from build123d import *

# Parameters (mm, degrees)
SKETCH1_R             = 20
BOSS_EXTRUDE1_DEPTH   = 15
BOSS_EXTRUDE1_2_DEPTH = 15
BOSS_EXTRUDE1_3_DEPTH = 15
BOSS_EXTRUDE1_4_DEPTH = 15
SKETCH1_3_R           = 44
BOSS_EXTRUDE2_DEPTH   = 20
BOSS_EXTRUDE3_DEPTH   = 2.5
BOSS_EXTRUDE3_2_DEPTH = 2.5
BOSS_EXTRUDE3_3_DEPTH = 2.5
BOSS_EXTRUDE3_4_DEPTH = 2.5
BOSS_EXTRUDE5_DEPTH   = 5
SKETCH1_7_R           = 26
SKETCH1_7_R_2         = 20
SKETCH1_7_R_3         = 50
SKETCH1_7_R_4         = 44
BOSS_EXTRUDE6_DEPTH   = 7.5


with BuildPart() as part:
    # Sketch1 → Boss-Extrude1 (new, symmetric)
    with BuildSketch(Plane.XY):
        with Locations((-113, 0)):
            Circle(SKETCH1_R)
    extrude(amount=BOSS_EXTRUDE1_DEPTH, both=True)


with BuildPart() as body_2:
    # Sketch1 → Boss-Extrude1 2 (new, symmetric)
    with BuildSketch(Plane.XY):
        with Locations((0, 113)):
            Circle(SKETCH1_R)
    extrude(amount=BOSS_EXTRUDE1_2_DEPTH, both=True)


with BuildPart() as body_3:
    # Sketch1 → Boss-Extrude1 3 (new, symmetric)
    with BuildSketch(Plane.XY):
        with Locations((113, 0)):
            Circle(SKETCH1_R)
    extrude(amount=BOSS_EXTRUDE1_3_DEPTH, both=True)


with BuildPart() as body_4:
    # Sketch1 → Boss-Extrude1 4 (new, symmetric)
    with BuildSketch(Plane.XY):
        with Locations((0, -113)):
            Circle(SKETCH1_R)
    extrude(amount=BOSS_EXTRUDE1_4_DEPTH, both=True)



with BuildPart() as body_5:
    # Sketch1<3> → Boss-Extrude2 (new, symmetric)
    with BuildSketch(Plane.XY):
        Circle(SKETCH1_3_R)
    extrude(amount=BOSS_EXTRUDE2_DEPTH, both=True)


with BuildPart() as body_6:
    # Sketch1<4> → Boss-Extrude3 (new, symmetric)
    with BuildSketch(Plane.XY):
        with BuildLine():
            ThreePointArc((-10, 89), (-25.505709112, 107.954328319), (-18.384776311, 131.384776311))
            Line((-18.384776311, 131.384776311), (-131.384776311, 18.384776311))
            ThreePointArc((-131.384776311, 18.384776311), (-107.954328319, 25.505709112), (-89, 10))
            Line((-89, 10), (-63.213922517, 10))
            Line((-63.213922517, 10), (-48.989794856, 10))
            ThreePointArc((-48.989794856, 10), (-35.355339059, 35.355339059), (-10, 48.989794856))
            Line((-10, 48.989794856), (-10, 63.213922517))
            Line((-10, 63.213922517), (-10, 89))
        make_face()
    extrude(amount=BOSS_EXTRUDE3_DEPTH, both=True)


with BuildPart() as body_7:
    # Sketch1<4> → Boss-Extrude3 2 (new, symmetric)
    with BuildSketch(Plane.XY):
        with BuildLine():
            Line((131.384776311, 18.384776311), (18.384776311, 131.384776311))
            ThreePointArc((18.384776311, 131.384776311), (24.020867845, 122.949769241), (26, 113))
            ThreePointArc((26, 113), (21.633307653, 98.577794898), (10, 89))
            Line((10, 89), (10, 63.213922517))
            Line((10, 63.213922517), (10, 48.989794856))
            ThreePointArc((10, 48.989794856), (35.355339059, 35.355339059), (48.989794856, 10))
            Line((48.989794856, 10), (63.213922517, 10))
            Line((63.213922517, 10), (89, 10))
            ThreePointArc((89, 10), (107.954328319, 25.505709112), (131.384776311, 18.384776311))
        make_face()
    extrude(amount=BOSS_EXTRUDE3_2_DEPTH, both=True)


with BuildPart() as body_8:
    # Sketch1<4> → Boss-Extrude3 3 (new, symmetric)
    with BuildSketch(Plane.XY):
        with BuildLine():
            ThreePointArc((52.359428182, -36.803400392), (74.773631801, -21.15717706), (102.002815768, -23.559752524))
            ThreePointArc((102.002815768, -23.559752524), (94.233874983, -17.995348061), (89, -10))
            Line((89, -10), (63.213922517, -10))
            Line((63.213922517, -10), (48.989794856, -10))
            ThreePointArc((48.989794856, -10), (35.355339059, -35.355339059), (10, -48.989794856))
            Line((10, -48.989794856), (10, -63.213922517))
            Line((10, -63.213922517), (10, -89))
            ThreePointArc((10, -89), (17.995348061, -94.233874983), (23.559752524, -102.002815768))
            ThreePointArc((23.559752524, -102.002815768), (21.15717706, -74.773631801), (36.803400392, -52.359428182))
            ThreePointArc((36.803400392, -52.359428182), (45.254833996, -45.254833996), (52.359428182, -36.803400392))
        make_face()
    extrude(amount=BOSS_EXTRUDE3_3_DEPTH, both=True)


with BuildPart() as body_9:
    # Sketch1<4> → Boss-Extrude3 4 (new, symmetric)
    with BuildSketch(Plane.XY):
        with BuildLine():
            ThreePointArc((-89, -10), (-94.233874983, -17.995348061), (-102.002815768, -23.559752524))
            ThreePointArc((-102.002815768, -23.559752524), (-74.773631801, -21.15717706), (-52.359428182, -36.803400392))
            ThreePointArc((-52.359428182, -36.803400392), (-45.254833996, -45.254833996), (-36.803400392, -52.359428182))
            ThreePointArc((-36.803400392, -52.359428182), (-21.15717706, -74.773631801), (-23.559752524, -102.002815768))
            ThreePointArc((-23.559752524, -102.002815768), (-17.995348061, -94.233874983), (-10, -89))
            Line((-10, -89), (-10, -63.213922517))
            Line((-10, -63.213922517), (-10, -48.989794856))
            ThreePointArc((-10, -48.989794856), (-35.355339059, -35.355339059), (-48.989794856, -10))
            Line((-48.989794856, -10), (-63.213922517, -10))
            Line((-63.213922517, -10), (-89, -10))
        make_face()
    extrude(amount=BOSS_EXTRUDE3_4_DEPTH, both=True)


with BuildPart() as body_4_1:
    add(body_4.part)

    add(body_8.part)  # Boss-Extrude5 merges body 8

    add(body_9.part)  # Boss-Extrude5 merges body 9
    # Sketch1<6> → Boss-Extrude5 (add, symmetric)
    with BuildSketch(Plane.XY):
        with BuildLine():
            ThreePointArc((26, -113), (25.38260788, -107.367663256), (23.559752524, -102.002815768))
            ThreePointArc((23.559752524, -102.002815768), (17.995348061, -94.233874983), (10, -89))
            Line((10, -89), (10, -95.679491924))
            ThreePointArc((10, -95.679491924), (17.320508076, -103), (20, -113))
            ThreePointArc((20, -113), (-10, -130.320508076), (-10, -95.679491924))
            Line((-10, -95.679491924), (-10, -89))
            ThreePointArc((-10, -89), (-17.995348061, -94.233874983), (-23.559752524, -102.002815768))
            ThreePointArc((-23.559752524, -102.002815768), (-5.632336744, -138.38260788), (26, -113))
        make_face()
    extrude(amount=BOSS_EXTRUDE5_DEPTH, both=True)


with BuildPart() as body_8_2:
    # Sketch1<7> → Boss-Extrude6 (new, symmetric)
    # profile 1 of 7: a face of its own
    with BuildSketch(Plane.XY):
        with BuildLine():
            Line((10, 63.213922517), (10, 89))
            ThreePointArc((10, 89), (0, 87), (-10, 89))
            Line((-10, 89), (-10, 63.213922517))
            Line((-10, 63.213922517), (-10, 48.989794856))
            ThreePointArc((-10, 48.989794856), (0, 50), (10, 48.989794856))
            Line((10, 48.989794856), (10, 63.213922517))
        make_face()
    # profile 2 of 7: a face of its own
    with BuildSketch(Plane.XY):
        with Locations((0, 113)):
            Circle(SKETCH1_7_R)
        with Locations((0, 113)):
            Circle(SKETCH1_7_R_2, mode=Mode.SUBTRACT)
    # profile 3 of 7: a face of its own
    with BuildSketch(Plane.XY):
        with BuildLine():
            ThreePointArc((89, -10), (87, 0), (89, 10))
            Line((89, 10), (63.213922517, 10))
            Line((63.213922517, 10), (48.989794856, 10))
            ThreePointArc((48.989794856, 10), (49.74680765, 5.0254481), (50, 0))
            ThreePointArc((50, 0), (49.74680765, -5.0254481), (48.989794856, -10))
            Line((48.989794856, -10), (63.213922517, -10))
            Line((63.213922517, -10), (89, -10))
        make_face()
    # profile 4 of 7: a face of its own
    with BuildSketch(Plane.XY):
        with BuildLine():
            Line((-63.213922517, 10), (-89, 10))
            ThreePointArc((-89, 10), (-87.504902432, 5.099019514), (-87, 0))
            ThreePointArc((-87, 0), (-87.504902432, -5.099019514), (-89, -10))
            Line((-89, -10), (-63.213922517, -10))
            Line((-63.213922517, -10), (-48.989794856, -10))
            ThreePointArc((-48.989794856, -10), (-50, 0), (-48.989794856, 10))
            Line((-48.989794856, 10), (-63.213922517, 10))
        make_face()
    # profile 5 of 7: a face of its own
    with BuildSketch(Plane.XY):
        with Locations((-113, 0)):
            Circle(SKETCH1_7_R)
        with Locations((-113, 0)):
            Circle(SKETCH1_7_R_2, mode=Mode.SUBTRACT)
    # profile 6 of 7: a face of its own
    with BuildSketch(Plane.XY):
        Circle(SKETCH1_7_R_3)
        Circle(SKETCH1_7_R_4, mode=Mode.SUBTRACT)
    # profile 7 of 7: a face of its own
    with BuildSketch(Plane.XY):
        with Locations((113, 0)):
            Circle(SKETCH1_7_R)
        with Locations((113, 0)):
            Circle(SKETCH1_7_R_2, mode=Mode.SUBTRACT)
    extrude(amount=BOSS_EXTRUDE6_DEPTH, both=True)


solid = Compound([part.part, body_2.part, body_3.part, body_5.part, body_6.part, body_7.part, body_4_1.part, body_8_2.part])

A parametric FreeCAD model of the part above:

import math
import FreeCAD as App
import Part
import Sketcher

V = App.Vector
Q = App.Units.Quantity

doc = App.newDocument("Part")
body = doc.addObject("PartDesign::Body", "Body")

# Sketch on XY plane
sketch1 = body.newObject("Sketcher::SketchObject", "Sketch")
sketch1.AttachmentSupport = (doc.getObject("XY_Plane"), [""])
sketch1.MapMode = "FlatFace"
sketch1.addGeometry(Part.Circle(V(-113, 0, 0), V(0, 0, 1), 20), False)
sketch1.addConstraint([
    Sketcher.Constraint("PointOnObject", 0, 3, -1),
    Sketcher.Constraint("Diameter", 0, 40.0),
    Sketcher.Constraint("DistanceX", 0, 3, -1, 1, 113.0),
])
pad1 = body.newObject("PartDesign::Pad", "Pad")
pad1.Profile = sketch1
pad1.Length = 30
pad1.Midplane = True
body2 = doc.addObject("PartDesign::Body", "Body001")

# Sketch on XY plane
sketch2 = body2.newObject("Sketcher::SketchObject", "Sketch001")
sketch2.AttachmentSupport = (doc.getObject("XY_Plane001"), [""])
sketch2.MapMode = "FlatFace"
sketch2.addGeometry(Part.Circle(V(0, 113, 0), V(0, 0, 1), 20), False)
sketch2.addConstraint([
    Sketcher.Constraint("PointOnObject", 0, 3, -2),
    Sketcher.Constraint("Diameter", 0, 40.0),
    Sketcher.Constraint("DistanceY", -1, 1, 0, 3, 113.0),
])
pad2 = body2.newObject("PartDesign::Pad", "Pad001")
pad2.Profile = sketch2
pad2.Length = 30
pad2.Midplane = True
body3 = doc.addObject("PartDesign::Body", "Body002")

# Sketch on XY plane
sketch3 = body3.newObject("Sketcher::SketchObject", "Sketch002")
sketch3.AttachmentSupport = (doc.getObject("XY_Plane002"), [""])
sketch3.MapMode = "FlatFace"
sketch3.addGeometry(Part.Circle(V(113, 0, 0), V(0, 0, 1), 20), False)
sketch3.addConstraint([
    Sketcher.Constraint("PointOnObject", 0, 3, -1),
    Sketcher.Constraint("Diameter", 0, 40.0),
    Sketcher.Constraint("DistanceX", -1, 1, 0, 3, 113.0),
])
pad3 = body3.newObject("PartDesign::Pad", "Pad002")
pad3.Profile = sketch3
pad3.Length = 30
pad3.Midplane = True
body4 = doc.addObject("PartDesign::Body", "Body003")

# Sketch on XY plane
sketch4 = body4.newObject("Sketcher::SketchObject", "Sketch003")
sketch4.AttachmentSupport = (doc.getObject("XY_Plane003"), [""])
sketch4.MapMode = "FlatFace"
sketch4.addGeometry(Part.Circle(V(0, -113, 0), V(0, 0, 1), 20), False)
sketch4.addConstraint([
    Sketcher.Constraint("PointOnObject", 0, 3, -2),
    Sketcher.Constraint("Diameter", 0, 40.0),
    Sketcher.Constraint("DistanceY", 0, 3, -1, 1, 113.0),
])
pad4 = body4.newObject("PartDesign::Pad", "Pad003")
pad4.Profile = sketch4
pad4.Length = 30
pad4.Midplane = True
body5 = doc.addObject("PartDesign::Body", "Body004")

# Sketch on XY plane
sketch5 = body5.newObject("Sketcher::SketchObject", "Sketch004")
sketch5.AttachmentSupport = (doc.getObject("XY_Plane004"), [""])
sketch5.MapMode = "FlatFace"
sketch5.addGeometry(Part.Circle(V(0, 0, 0), V(0, 0, 1), 44), False)
sketch5.addConstraint([
    Sketcher.Constraint("Coincident", 0, 3, -1, 1),
    Sketcher.Constraint("Diameter", 0, 88.0),
])
pad5 = body5.newObject("PartDesign::Pad", "Pad004")
pad5.Profile = sketch5
pad5.Length = 40
pad5.Midplane = True
body6 = doc.addObject("PartDesign::Body", "Body005")

# Sketch on XY plane
sketch6 = body6.newObject("Sketcher::SketchObject", "Sketch005")
sketch6.AttachmentSupport = (doc.getObject("XY_Plane005"), [""])
sketch6.MapMode = "FlatFace"
sketch6.addGeometry([
    Part.ArcOfCircle(Part.Circle(V(0, 113, 0), V(0, 0, 1), 26), math.radians(135), math.radians(247.380135)),  # 0
    Part.LineSegment(V(-18.384776, 131.384776, 0), V(-131.384776, 18.384776, 0)),  # 1
    Part.ArcOfCircle(Part.Circle(V(-113, 0, 0), V(0, 0, 1), 26), math.radians(22.619865), math.radians(135)),  # 2
    Part.LineSegment(V(-89, 10, 0), V(-48.989795, 10, 0)),  # 3
    Part.ArcOfCircle(Part.Circle(V(0, 0, 0), V(0, 0, 1), 50), math.radians(101.536959), math.radians(168.463041)),  # 4
    Part.LineSegment(V(-10, 48.989795, 0), V(-10, 89, 0)),  # 5
], False)
sketch6.addConstraint([
    Sketcher.Constraint("Tangent", 0, 1, 1, 1),
    Sketcher.Constraint("Tangent", 1, 2, 2, 2),
    Sketcher.Constraint("Coincident", 2, 1, 3, 1),
    Sketcher.Constraint("Coincident", 3, 2, 4, 2),
    Sketcher.Constraint("Coincident", 4, 1, 5, 1),
    Sketcher.Constraint("Coincident", 5, 2, 0, 2),
    Sketcher.Constraint("Horizontal", 3),
    Sketcher.Constraint("Vertical", 5),
    Sketcher.Constraint("Coincident", 4, 3, -1, 1),
    Sketcher.Constraint("Equal", 0, 2),
    Sketcher.Constraint("PointOnObject", 0, 3, -2),
    Sketcher.Constraint("PointOnObject", 2, 3, -1),
    Sketcher.Constraint("Equal", 3, 5),
    Sketcher.Constraint("Radius", 0, 26.0),
    Sketcher.Constraint("Radius", 4, 50.0),
    Sketcher.Constraint("Angle", 1, Q("-135 deg")),
    Sketcher.Constraint("DistanceY", -1, 1, 0, 3, 113.0),
    Sketcher.Constraint("DistanceX", 2, 1, -1, 1, 89.0),
])
pad6 = body6.newObject("PartDesign::Pad", "Pad005")
pad6.Profile = sketch6
pad6.Length = 5
pad6.Midplane = True
body7 = doc.addObject("PartDesign::Body", "Body006")

# Sketch on XY plane
sketch7 = body7.newObject("Sketcher::SketchObject", "Sketch006")
sketch7.AttachmentSupport = (doc.getObject("XY_Plane006"), [""])
sketch7.MapMode = "FlatFace"
sketch7.addGeometry([
    Part.LineSegment(V(131.384776, 18.384776, 0), V(18.384776, 131.384776, 0)),  # 0
    Part.ArcOfCircle(Part.Circle(V(0, 113, 0), V(0, 0, 1), 26), math.radians(0), math.radians(45)),  # 1
    Part.ArcOfCircle(Part.Circle(V(0, 113, 0), V(0, 0, 1), 26), math.radians(-67.380135), math.radians(0)),  # 2
    Part.LineSegment(V(10, 89, 0), V(10, 48.989795, 0)),  # 3
    Part.ArcOfCircle(Part.Circle(V(0, 0, 0), V(0, 0, 1), 50), math.radians(11.536959), math.radians(78.463041)),  # 4
    Part.LineSegment(V(48.989795, 10, 0), V(89, 10, 0)),  # 5
    Part.ArcOfCircle(Part.Circle(V(113, 0, 0), V(0, 0, 1), 26), math.radians(45), math.radians(157.380135)),  # 6
], False)
sketch7.addConstraint([
    Sketcher.Constraint("Tangent", 0, 2, 1, 2),
    Sketcher.Constraint("Tangent", 1, 1, 2, 2),
    Sketcher.Constraint("Coincident", 2, 1, 3, 1),
    Sketcher.Constraint("Coincident", 3, 2, 4, 2),
    Sketcher.Constraint("Coincident", 4, 1, 5, 1),
    Sketcher.Constraint("Coincident", 5, 2, 6, 2),
    Sketcher.Constraint("Tangent", 6, 1, 0, 1),
    Sketcher.Constraint("Vertical", 3),
    Sketcher.Constraint("Horizontal", 5),
    Sketcher.Constraint("Coincident", 4, 3, -1, 1),
    Sketcher.Constraint("Equal", 1, 2),
    Sketcher.Constraint("Equal", 2, 6),
    Sketcher.Constraint("PointOnObject", 1, 3, -2),
    Sketcher.Constraint("PointOnObject", 6, 3, -1),
    Sketcher.Constraint("Horizontal", 2, 3, 1, 1),
    Sketcher.Constraint("Equal", 5, 3),
    Sketcher.Constraint("Radius", 1, 26.0),
    Sketcher.Constraint("Radius", 4, 50.0),
    Sketcher.Constraint("Angle", 0, Q("135 deg")),
    Sketcher.Constraint("DistanceY", -1, 1, 1, 3, 113.0),
    Sketcher.Constraint("DistanceX", -1, 1, 2, 1, 10.0),
])
pad7 = body7.newObject("PartDesign::Pad", "Pad006")
pad7.Profile = sketch7
pad7.Length = 5
pad7.Midplane = True
body8 = doc.addObject("PartDesign::Body", "Body007")

# Sketch on XY plane
sketch8 = body8.newObject("Sketcher::SketchObject", "Sketch007")
sketch8.AttachmentSupport = (doc.getObject("XY_Plane007"), [""])
sketch8.MapMode = "FlatFace"
sketch8.addGeometry([
    Part.ArcOfCircle(Part.Circle(V(85.084071, -59.805526, 0), V(0, 0, 1), 40), math.radians(64.977848), math.radians(144.896647)),  # 0
    Part.ArcOfCircle(Part.Circle(V(113, 0, 0), V(0, 0, 1), 26), math.radians(-157.380135), math.radians(-115.022152)),  # 1
    Part.LineSegment(V(89, -10, 0), V(48.989795, -10, 0)),  # 2
    Part.ArcOfCircle(Part.Circle(V(0, 0, 0), V(0, 0, 1), 50), math.radians(-78.463041), math.radians(-11.536959)),  # 3
    Part.LineSegment(V(10, -48.989795, 0), V(10, -89, 0)),  # 4
    Part.ArcOfCircle(Part.Circle(V(0, -113, 0), V(0, 0, 1), 26), math.radians(25.022152), math.radians(67.380135)),  # 5
    Part.ArcOfCircle(Part.Circle(V(59.805526, -85.084071, 0), V(0, 0, 1), 40), math.radians(125.103353), math.radians(205.022152)),  # 6
    Part.ArcOfCircle(Part.Circle(V(0, 0, 0), V(0, 0, 1), 64), math.radians(-54.896647), math.radians(-35.103353)),  # 7
], False)
sketch8.addConstraint([
    Sketcher.Constraint("Tangent", 0, 1, 1, 2),
    Sketcher.Constraint("Coincident", 1, 1, 2, 1),
    Sketcher.Constraint("Coincident", 2, 2, 3, 2),
    Sketcher.Constraint("Coincident", 3, 1, 4, 1),
    Sketcher.Constraint("Coincident", 4, 2, 5, 2),
    Sketcher.Constraint("Tangent", 5, 1, 6, 2),
    Sketcher.Constraint("Tangent", 6, 1, 7, 1),
    Sketcher.Constraint("Tangent", 7, 2, 0, 2),
    Sketcher.Constraint("Horizontal", 2),
    Sketcher.Constraint("Vertical", 4),
    Sketcher.Constraint("Coincident", 3, 3, -1, 1),
    Sketcher.Constraint("Coincident", 7, 3, -1, 1),
    Sketcher.Constraint("Equal", 1, 5),
    Sketcher.Constraint("Equal", 0, 6),
    Sketcher.Constraint("PointOnObject", 1, 3, -1),
    Sketcher.Constraint("PointOnObject", 5, 3, -2),
    Sketcher.Constraint("Equal", 2, 4),
    Sketcher.Constraint("Radius", 0, 40.0),
    Sketcher.Constraint("Radius", 1, 26.0),
    Sketcher.Constraint("Radius", 3, 50.0),
    Sketcher.Constraint("Radius", 7, 64.0),
    Sketcher.Constraint("DistanceX", -1, 1, 1, 3, 113.0),
    Sketcher.Constraint("DistanceY", 5, 3, -1, 1, 113.0),
    Sketcher.Constraint("DistanceX", -1, 1, 1, 1, 89.0),
])
pad8 = body8.newObject("PartDesign::Pad", "Pad007")
pad8.Profile = sketch8
pad8.Length = 5
pad8.Midplane = True
body9 = doc.addObject("PartDesign::Body", "Body008")

# Sketch on XY plane
sketch9 = body9.newObject("Sketcher::SketchObject", "Sketch008")
sketch9.AttachmentSupport = (doc.getObject("XY_Plane008"), [""])
sketch9.MapMode = "FlatFace"
sketch9.addGeometry([
    Part.ArcOfCircle(Part.Circle(V(-113, 0, 0), V(0, 0, 1), 26), math.radians(-64.977848), math.radians(-22.619865)),  # 0
    Part.ArcOfCircle(Part.Circle(V(-85.084071, -59.805526, 0), V(0, 0, 1), 40), math.radians(35.103353), math.radians(115.022152)),  # 1
    Part.ArcOfCircle(Part.Circle(V(0, 0, 0), V(0, 0, 1), 64), math.radians(-144.896647), math.radians(-125.103353)),  # 2
    Part.ArcOfCircle(Part.Circle(V(-59.805526, -85.084071, 0), V(0, 0, 1), 40), math.radians(-25.022152), math.radians(54.896647)),  # 3
    Part.ArcOfCircle(Part.Circle(V(0, -113, 0), V(0, 0, 1), 26), math.radians(112.619865), math.radians(154.977848)),  # 4
    Part.LineSegment(V(-10, -89, 0), V(-10, -48.989795, 0)),  # 5
    Part.ArcOfCircle(Part.Circle(V(0, 0, 0), V(0, 0, 1), 50), math.radians(-168.463041), math.radians(-101.536959)),  # 6
    Part.LineSegment(V(-48.989795, -10, 0), V(-89, -10, 0)),  # 7
], False)
sketch9.addConstraint([
    Sketcher.Constraint("Tangent", 0, 1, 1, 2),
    Sketcher.Constraint("Tangent", 1, 1, 2, 1),
    Sketcher.Constraint("Tangent", 2, 2, 3, 2),
    Sketcher.Constraint("Tangent", 3, 1, 4, 2),
    Sketcher.Constraint("Coincident", 4, 1, 5, 1),
    Sketcher.Constraint("Coincident", 5, 2, 6, 2),
    Sketcher.Constraint("Coincident", 6, 1, 7, 1),
    Sketcher.Constraint("Coincident", 7, 2, 0, 2),
    Sketcher.Constraint("Vertical", 5),
    Sketcher.Constraint("Horizontal", 7),
    Sketcher.Constraint("Coincident", 2, 3, -1, 1),
    Sketcher.Constraint("Coincident", 6, 3, -1, 1),
    Sketcher.Constraint("Equal", 1, 3),
    Sketcher.Constraint("Equal", 0, 4),
    Sketcher.Constraint("PointOnObject", 0, 3, -1),
    Sketcher.Constraint("PointOnObject", 4, 3, -2),
    Sketcher.Constraint("Equal", 7, 5),
    Sketcher.Constraint("Radius", 0, 26.0),
    Sketcher.Constraint("Radius", 1, 40.0),
    Sketcher.Constraint("Radius", 2, 64.0),
    Sketcher.Constraint("Radius", 6, 50.0),
    Sketcher.Constraint("DistanceX", 0, 3, -1, 1, 113.0),
    Sketcher.Constraint("DistanceY", 4, 3, -1, 1, 113.0),
    Sketcher.Constraint("DistanceX", 4, 1, -1, 1, 10.0),
])
pad9 = body9.newObject("PartDesign::Pad", "Pad008")
pad9.Profile = sketch9
pad9.Length = 5
pad9.Midplane = True
body4.AllowCompound = True
doc.recompute()

boolean = body4.newObject("PartDesign::Boolean", "Boolean")
boolean.Type = "Fuse"
boolean.addObjects([body8])
doc.recompute()

boolean2 = body4.newObject("PartDesign::Boolean", "Boolean001")
boolean2.Type = "Fuse"
boolean2.addObjects([body9])

# Sketch on XY plane
sketch10 = body4.newObject("Sketcher::SketchObject", "Sketch009")
sketch10.AttachmentSupport = (doc.getObject("XY_Plane003"), [""])
sketch10.MapMode = "FlatFace"
sketch10.addGeometry([
    Part.ArcOfCircle(Part.Circle(V(0, -113, 0), V(0, 0, 1), 26), math.radians(0), math.radians(25.022152)),  # 0
    Part.ArcOfCircle(Part.Circle(V(0, -113, 0), V(0, 0, 1), 26), math.radians(25.022152), math.radians(67.380135)),  # 1
    Part.LineSegment(V(10, -89, 0), V(10, -95.679492, 0)),  # 2
    Part.ArcOfCircle(Part.Circle(V(0, -113, 0), V(0, 0, 1), 20), math.radians(0), math.radians(60)),  # 3
    Part.ArcOfCircle(Part.Circle(V(0, -113, 0), V(0, 0, 1), 20), math.radians(120), math.radians(360)),  # 4
    Part.LineSegment(V(-10, -95.679492, 0), V(-10, -89, 0)),  # 5
    Part.ArcOfCircle(Part.Circle(V(0, -113, 0), V(0, 0, 1), 26), math.radians(112.619865), math.radians(154.977848)),  # 6
    Part.ArcOfCircle(Part.Circle(V(0, -113, 0), V(0, 0, 1), 26), math.radians(154.977848), math.radians(360)),  # 7
], False)
sketch10.addConstraint([
    Sketcher.Constraint("Tangent", 0, 2, 1, 1),
    Sketcher.Constraint("Coincident", 1, 2, 2, 1),
    Sketcher.Constraint("Coincident", 2, 2, 3, 2),
    Sketcher.Constraint("Tangent", 3, 1, 4, 2),
    Sketcher.Constraint("Coincident", 4, 1, 5, 1),
    Sketcher.Constraint("Coincident", 5, 2, 6, 1),
    Sketcher.Constraint("Tangent", 6, 2, 7, 1),
    Sketcher.Constraint("Tangent", 7, 2, 0, 1),
    Sketcher.Constraint("Vertical", 2),
    Sketcher.Constraint("Vertical", 5),
    Sketcher.Constraint("Coincident", 3, 3, 0, 3),
    Sketcher.Constraint("Coincident", 6, 3, 0, 3),
    Sketcher.Constraint("Equal", 0, 1),
    Sketcher.Constraint("Equal", 3, 4),
    Sketcher.Constraint("Symmetric", 2, 2, 4, 1, -2),
    Sketcher.Constraint("Horizontal", 7, 3, 3, 1),
    Sketcher.Constraint("Horizontal", 0, 2, 6, 2),
    Sketcher.Constraint("Horizontal", 3, 1, 7, 2),
    Sketcher.Constraint("Radius", 0, 26.0),
    Sketcher.Constraint("Radius", 3, 20.0),
    Sketcher.Constraint("DistanceY", 0, 3, -1, 1, 113.0),
    Sketcher.Constraint("DistanceX", -1, 1, 1, 2, 10.0),
    Sketcher.Constraint("DistanceX", -1, 1, 0, 2, 23.559753),
])
pad10 = body4.newObject("PartDesign::Pad", "Pad009")
pad10.Profile = sketch10
pad10.Length = 10
pad10.Midplane = True
body10 = doc.addObject("PartDesign::Body", "Body009")

# Sketch on XY plane
sketch11 = body10.newObject("Sketcher::SketchObject", "Sketch010")
sketch11.AttachmentSupport = (doc.getObject("XY_Plane009"), [""])
sketch11.MapMode = "FlatFace"
sketch11.addGeometry([
    Part.LineSegment(V(-10, 89, 0), V(-10, 48.989795, 0)),  # 0
    Part.ArcOfCircle(Part.Circle(V(0, 0, 0), V(0, 0, 1), 50), math.radians(101.536959), math.radians(168.463041)),  # 1
    Part.LineSegment(V(-48.989795, 10, 0), V(-89, 10, 0)),  # 2
    Part.ArcOfCircle(Part.Circle(V(-113, 0, 0), V(0, 0, 1), 26), math.radians(22.619865), math.radians(337.380135)),  # 3
    Part.LineSegment(V(-89, -10, 0), V(-48.989795, -10, 0)),  # 4
    Part.ArcOfCircle(Part.Circle(V(0, 0, 0), V(0, 0, 1), 50), math.radians(-168.463041), math.radians(-11.536959)),  # 5
    Part.LineSegment(V(48.989795, -10, 0), V(89, -10, 0)),  # 6
    Part.ArcOfCircle(Part.Circle(V(113, 0, 0), V(0, 0, 1), 26), math.radians(-157.380135), math.radians(157.380135)),  # 7
    Part.LineSegment(V(89, 10, 0), V(48.989795, 10, 0)),  # 8
    Part.ArcOfCircle(Part.Circle(V(0, 0, 0), V(0, 0, 1), 50), math.radians(11.536959), math.radians(78.463041)),  # 9
    Part.LineSegment(V(10, 48.989795, 0), V(10, 89, 0)),  # 10
    Part.ArcOfCircle(Part.Circle(V(0, 113, 0), V(0, 0, 1), 26), math.radians(-67.380135), math.radians(247.380135)),  # 11
    Part.Circle(V(0, 113, 0), V(0, 0, 1), 20),  # 12
    Part.Circle(V(0, 0, 0), V(0, 0, 1), 44),  # 13
    Part.Circle(V(113, 0, 0), V(0, 0, 1), 20),  # 14
    Part.Circle(V(-113, 0, 0), V(0, 0, 1), 20),  # 15
], False)
sketch11.addConstraint([
    Sketcher.Constraint("Coincident", 0, 2, 1, 1),
    Sketcher.Constraint("Coincident", 1, 2, 2, 1),
    Sketcher.Constraint("Coincident", 2, 2, 3, 1),
    Sketcher.Constraint("Coincident", 3, 2, 4, 1),
    Sketcher.Constraint("Coincident", 4, 2, 5, 1),
    Sketcher.Constraint("Coincident", 5, 2, 6, 1),
    Sketcher.Constraint("Coincident", 6, 2, 7, 1),
    Sketcher.Constraint("Coincident", 7, 2, 8, 1),
    Sketcher.Constraint("Coincident", 8, 2, 9, 1),
    Sketcher.Constraint("Coincident", 9, 2, 10, 1),
    Sketcher.Constraint("Coincident", 10, 2, 11, 1),
    Sketcher.Constraint("Coincident", 11, 2, 0, 1),
    Sketcher.Constraint("Vertical", 0),
    Sketcher.Constraint("Horizontal", 2),
    Sketcher.Constraint("Horizontal", 4),
    Sketcher.Constraint("Horizontal", 6),
    Sketcher.Constraint("Horizontal", 8),
    Sketcher.Constraint("Vertical", 10),
    Sketcher.Constraint("Coincident", 1, 3, -1, 1),
    Sketcher.Constraint("Coincident", 5, 3, -1, 1),
    Sketcher.Constraint("Coincident", 9, 3, -1, 1),
    Sketcher.Constraint("Coincident", 13, 3, -1, 1),
    Sketcher.Constraint("Coincident", 12, 3, 11, 3),
    Sketcher.Constraint("Coincident", 14, 3, 7, 3),
    Sketcher.Constraint("Coincident", 15, 3, 3, 3),
    Sketcher.Constraint("Equal", 1, 5),
    Sketcher.Constraint("Equal", 3, 7),
    Sketcher.Constraint("Equal", 5, 9),
    Sketcher.Constraint("Equal", 7, 11),
    Sketcher.Constraint("Equal", 12, 14),
    Sketcher.Constraint("Equal", 14, 15),
    Sketcher.Constraint("Symmetric", 3, 3, 7, 3, -1, 1),
    Sketcher.Constraint("Symmetric", 3, 2, 6, 2, -2),
    Sketcher.Constraint("Symmetric", 10, 2, 11, 2, -2),
    Sketcher.Constraint("Horizontal", 2, 2, 7, 2),
    Sketcher.Constraint("Vertical", 2, 2, 3, 2),
    Sketcher.Constraint("Equal", 8, 0),
    Sketcher.Constraint("Diameter", 12, 40.0),
    Sketcher.Constraint("Diameter", 13, 88.0),
    Sketcher.Constraint("Radius", 1, 50.0),
    Sketcher.Constraint("Radius", 3, 26.0),
    Sketcher.Constraint("DistanceX", 3, 3, -1, 1, 113.0),
    Sketcher.Constraint("DistanceY", -1, 1, 11, 3, 113.0),
    Sketcher.Constraint("DistanceX", 0, 2, -1, 1, 10.0),
])
pad11 = body10.newObject("PartDesign::Pad", "Pad010")
pad11.Profile = sketch11
pad11.Length = 15
pad11.Midplane = True

doc.recompute()
